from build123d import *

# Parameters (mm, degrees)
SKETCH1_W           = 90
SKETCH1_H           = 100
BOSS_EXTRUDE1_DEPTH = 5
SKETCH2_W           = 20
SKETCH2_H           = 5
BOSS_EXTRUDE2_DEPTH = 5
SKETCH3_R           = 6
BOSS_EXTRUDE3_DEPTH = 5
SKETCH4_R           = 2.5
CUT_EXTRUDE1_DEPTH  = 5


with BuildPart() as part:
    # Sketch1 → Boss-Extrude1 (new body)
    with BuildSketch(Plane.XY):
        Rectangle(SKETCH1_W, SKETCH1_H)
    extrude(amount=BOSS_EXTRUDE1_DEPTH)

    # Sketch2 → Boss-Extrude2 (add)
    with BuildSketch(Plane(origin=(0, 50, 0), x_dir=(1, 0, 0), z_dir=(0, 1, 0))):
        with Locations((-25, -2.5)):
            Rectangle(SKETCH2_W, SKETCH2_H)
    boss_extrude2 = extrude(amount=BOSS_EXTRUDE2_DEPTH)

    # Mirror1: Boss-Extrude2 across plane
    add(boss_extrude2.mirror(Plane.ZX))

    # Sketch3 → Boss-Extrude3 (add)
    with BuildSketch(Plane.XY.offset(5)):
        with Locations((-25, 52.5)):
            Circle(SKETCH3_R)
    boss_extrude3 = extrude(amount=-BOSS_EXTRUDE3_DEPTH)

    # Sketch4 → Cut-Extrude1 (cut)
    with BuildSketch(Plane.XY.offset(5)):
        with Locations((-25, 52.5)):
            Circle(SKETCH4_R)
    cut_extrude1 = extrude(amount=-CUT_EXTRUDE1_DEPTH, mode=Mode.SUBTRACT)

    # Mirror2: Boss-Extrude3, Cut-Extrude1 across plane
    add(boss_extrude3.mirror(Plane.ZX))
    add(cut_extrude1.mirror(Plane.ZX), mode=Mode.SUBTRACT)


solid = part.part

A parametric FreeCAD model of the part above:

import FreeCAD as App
import Part
import Sketcher
from FreeCAD import Vector

doc = App.newDocument("Part")
body = doc.addObject("PartDesign::Body", "Body")

# Sketch on XY plane
sketch1 = doc.addObject("Sketcher::SketchObject", "Sketch")
body.addObject(sketch1)
sketch1.AttachmentSupport = (doc.XY_Plane, [""])
sketch1.MapMode = "FlatFace"
sketch1.addGeometry([
    Part.LineSegment(Vector(-45, 50, 0), Vector(-45, -50, 0)),
    Part.LineSegment(Vector(-45, -50, 0), Vector(45, -50, 0)),
    Part.LineSegment(Vector(45, -50, 0), Vector(45, 50, 0)),
    Part.LineSegment(Vector(45, 50, 0), Vector(-45, 50, 0)),
], False)
sketch1.addConstraint([
    Sketcher.Constraint("Coincident", 0, 2, 1, 1),
    Sketcher.Constraint("Coincident", 1, 2, 2, 1),
    Sketcher.Constraint("Coincident", 2, 2, 3, 1),
    Sketcher.Constraint("Coincident", 3, 2, 0, 1),
    Sketcher.Constraint("Vertical", 0),
    Sketcher.Constraint("Horizontal", 1),
    Sketcher.Constraint("Vertical", 2),
    Sketcher.Constraint("Horizontal", 3),
    Sketcher.Constraint("Symmetric", 0, 2, 2, 2, -1, 1),
    Sketcher.Constraint("DistanceX", 1, 1, 1, 2, 90.0),
    Sketcher.Constraint("DistanceY", 0, 2, 0, 1, 100.0),
])
pad1 = doc.addObject("PartDesign::Pad", "Pad")
body.addObject(pad1)
pad1.Profile = sketch1
pad1.Length = 5

# Sketch on XZ plane
sketch2 = doc.addObject("Sketcher::SketchObject", "Sketch001")
body.addObject(sketch2)
sketch2.AttachmentSupport = (doc.XZ_Plane, [""])
sketch2.MapMode = "FlatFace"
sketch2.AttachmentOffset = App.Placement(Vector(0, 0, -50), App.Rotation())
sketch2.addGeometry([
    Part.LineSegment(Vector(-35, 0, 0), Vector(-35, 5, 0)),
    Part.LineSegment(Vector(-35, 5, 0), Vector(-15, 5, 0)),
    Part.LineSegment(Vector(-15, 5, 0), Vector(-15, 0, 0)),
    Part.LineSegment(Vector(-15, 0, 0), Vector(-35, 0, 0)),
], False)
sketch2.addConstraint([
    Sketcher.Constraint("Coincident", 0, 2, 1, 1),
    Sketcher.Constraint("Coincident", 1, 2, 2, 1),
    Sketcher.Constraint("Coincident", 2, 2, 3, 1),
    Sketcher.Constraint("Coincident", 3, 2, 0, 1),
    Sketcher.Constraint("Vertical", 0),
    Sketcher.Constraint("Horizontal", 1),
    Sketcher.Constraint("Vertical", 2),
    Sketcher.Constraint("Horizontal", 3),
    Sketcher.Constraint("PointOnObject", 2, 2, -1),
    Sketcher.Constraint("DistanceX", 1, 1, 1, 2, 20.0),
    Sketcher.Constraint("DistanceY", 0, 1, 0, 2, 5.0),
    Sketcher.Constraint("DistanceX", 0, 2, -1, 1, 35.0),
])
pad2 = doc.addObject("PartDesign::Pad", "Pad001")
body.addObject(pad2)
pad2.Profile = sketch2
pad2.Length = 5
pad2.Reversed = True
doc.recompute()

mirrored = doc.addObject("PartDesign::Mirrored", "Mirrored")
body.addObject(mirrored)
mirrored.Originals = [pad2]
mirrored.MirrorPlane = (doc.XZ_Plane, [""])
body.Tip = mirrored

# Sketch on XY plane
sketch3 = doc.addObject("Sketcher::SketchObject", "Sketch002")
body.addObject(sketch3)
sketch3.AttachmentSupport = (doc.XY_Plane, [""])
sketch3.MapMode = "FlatFace"
sketch3.AttachmentOffset = App.Placement(Vector(0, 0, 5), App.Rotation())
sketch3.addGeometry(Part.Circle(Vector(-25, 52, 0), Vector(0, 0, 1), 6), False)
sketch3.addConstraint([
    Sketcher.Constraint("Diameter", 0, 12.0),
    Sketcher.Constraint("DistanceX", 0, 3, -1, 1, 25.0),
    Sketcher.Constraint("DistanceY", -1, 1, 0, 3, 52.5),
])
pad3 = doc.addObject("PartDesign::Pad", "Pad002")
body.addObject(pad3)
pad3.Profile = sketch3
pad3.Length = 5
pad3.Reversed = True

# Sketch on XY plane
sketch4 = doc.addObject("Sketcher::SketchObject", "Sketch003")
body.addObject(sketch4)
sketch4.AttachmentSupport = (doc.XY_Plane, [""])
sketch4.MapMode = "FlatFace"
sketch4.AttachmentOffset = App.Placement(Vector(0, 0, 5), App.Rotation())
sketch4.addGeometry(Part.Circle(Vector(-25, 52.5, 0), Vector(0, 0, 1), 2.5), False)
sketch4.addConstraint([
    Sketcher.Constraint("Diameter", 0, 5.0),
    Sketcher.Constraint("DistanceX", 0, 3, -1, 1, 25.0),
    Sketcher.Constraint("DistanceY", -1, 1, 0, 3, 52.5),
])
pocket1 = doc.addObject("PartDesign::Pocket", "Pocket")
body.addObject(pocket1)
pocket1.Profile = sketch4
pocket1.Length = 5
doc.recompute()

mirrored2 = doc.addObject("PartDesign::Mirrored", "Mirrored001")
body.addObject(mirrored2)
mirrored2.Originals = [pad3, pocket1]
mirrored2.MirrorPlane = (doc.XZ_Plane, [""])
body.Tip = mirrored2

doc.recompute()
